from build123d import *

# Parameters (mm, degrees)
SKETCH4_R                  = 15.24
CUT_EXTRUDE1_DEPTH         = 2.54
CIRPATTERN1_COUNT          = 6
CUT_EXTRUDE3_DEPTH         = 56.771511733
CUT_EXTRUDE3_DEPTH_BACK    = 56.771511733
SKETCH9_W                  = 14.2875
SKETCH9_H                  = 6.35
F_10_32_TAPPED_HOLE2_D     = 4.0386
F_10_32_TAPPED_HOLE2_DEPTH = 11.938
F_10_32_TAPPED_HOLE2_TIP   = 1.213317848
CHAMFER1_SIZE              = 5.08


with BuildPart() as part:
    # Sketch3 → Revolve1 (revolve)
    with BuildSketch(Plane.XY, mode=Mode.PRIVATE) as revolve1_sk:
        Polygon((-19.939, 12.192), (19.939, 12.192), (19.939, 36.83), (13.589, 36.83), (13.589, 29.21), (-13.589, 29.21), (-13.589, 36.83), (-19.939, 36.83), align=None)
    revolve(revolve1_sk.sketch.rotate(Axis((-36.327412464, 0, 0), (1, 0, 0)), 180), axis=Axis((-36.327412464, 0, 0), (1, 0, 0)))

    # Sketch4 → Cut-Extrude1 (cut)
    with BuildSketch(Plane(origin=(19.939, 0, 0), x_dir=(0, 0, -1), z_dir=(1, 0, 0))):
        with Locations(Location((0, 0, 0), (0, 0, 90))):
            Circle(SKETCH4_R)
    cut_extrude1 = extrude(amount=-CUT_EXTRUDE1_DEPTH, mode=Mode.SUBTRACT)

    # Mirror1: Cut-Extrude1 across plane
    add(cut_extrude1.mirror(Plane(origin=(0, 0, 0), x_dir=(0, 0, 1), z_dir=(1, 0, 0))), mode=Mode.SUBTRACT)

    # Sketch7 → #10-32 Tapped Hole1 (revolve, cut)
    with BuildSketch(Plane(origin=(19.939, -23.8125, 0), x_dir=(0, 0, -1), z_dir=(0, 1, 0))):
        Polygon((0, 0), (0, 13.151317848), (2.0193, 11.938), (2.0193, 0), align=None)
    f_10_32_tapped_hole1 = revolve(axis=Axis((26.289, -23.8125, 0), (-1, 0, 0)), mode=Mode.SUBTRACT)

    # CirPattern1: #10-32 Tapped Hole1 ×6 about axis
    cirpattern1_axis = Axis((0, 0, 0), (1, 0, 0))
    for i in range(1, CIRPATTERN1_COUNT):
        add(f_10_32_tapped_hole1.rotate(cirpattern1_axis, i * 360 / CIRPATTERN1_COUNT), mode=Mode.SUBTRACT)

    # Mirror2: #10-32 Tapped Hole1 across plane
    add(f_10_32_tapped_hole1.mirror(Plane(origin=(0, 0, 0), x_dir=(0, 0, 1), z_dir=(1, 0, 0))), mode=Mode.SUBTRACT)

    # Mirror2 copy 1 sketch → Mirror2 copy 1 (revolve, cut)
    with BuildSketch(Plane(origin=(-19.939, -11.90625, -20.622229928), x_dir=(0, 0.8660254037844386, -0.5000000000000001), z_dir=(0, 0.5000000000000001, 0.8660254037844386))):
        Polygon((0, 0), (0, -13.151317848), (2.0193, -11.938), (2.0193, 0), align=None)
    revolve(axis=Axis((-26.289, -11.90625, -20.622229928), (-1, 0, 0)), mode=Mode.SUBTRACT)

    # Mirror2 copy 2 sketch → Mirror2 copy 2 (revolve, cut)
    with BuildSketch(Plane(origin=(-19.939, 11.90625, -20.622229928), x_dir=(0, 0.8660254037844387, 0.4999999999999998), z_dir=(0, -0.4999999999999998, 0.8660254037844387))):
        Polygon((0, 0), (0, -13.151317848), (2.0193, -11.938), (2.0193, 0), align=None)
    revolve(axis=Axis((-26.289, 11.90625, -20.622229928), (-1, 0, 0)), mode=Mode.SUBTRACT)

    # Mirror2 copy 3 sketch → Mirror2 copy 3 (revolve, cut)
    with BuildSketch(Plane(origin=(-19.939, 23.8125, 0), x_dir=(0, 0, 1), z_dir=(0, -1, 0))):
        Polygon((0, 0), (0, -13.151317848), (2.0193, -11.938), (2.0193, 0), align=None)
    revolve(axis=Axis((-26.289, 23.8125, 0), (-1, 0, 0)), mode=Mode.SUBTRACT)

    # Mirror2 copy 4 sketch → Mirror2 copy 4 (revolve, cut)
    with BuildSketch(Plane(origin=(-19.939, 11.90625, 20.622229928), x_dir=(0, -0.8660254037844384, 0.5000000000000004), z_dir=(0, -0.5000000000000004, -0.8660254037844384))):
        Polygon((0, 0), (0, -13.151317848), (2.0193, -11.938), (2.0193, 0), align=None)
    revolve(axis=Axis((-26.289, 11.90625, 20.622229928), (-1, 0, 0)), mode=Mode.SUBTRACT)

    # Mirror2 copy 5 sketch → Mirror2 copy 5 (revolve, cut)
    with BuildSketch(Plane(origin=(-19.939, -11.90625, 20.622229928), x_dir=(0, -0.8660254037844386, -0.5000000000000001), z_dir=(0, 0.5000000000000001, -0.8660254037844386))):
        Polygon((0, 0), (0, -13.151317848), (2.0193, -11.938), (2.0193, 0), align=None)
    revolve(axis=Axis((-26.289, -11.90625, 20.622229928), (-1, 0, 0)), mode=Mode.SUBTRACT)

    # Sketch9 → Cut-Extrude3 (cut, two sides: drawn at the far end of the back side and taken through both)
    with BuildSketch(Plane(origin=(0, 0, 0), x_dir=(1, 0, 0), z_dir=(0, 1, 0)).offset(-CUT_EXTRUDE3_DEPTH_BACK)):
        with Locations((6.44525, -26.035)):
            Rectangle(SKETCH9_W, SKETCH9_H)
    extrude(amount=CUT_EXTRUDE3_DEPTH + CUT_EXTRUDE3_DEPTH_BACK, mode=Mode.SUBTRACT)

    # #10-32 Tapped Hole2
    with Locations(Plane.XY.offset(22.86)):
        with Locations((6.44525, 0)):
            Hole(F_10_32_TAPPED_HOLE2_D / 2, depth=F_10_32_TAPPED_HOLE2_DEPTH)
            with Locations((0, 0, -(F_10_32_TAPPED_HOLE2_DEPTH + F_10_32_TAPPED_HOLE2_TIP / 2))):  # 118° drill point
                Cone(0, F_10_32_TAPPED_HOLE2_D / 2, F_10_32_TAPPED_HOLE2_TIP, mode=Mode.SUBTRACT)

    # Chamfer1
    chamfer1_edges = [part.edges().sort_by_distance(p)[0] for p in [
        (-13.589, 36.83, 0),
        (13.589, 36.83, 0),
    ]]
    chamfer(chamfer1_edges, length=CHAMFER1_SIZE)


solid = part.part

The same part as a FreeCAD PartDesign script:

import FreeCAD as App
import Part
import Sketcher
Q = App.Units.Quantity


def edges_at(feature, points):
    """Names of the edges that pass closest to the given points."""
    edges = feature.Shape.Edges
    near = lambda p: min(range(len(edges)), key=lambda i: edges[i].distToShape(Part.Vertex(*p))[0])
    return sorted({f"Edge{near(p) + 1}" for p in points})


def add_polygon(sketch, points):
    """Adds a closed chain of lines whose ends are joined by coincident constraints."""
    first, n = sketch.GeometryCount, len(points)
    for a, b in zip(points, points[1:] + points[:1]):
        sketch.addGeometry(Part.LineSegment(App.Vector(*a, 0), App.Vector(*b, 0)), False)
    for i in range(n):
        sketch.addConstraint(Sketcher.Constraint("Coincident", first + i, 2, first + (i + 1) % n, 1))

doc = App.newDocument("Part")
body = doc.addObject("PartDesign::Body", "Body")

# Sketch on XY plane
sketch1 = body.newObject("Sketcher::SketchObject", "Sketch")
sketch1.AttachmentSupport = (doc.getObject("XY_Plane"), [""])
sketch1.MapMode = "FlatFace"
add_polygon(sketch1, [(-20, 12), (20, 12), (20, 37), (14, 37), (14, 29), (-14, 29), (-14, 37), (-20, 37)])  # lines 0-7
sketch1.addConstraint(Sketcher.Constraint("Horizontal", 0))
sketch1.addConstraint(Sketcher.Constraint("Vertical", 1))
sketch1.addConstraint(Sketcher.Constraint("Horizontal", 2))
sketch1.addConstraint(Sketcher.Constraint("Vertical", 3))
sketch1.addConstraint(Sketcher.Constraint("Horizontal", 4))
sketch1.addConstraint(Sketcher.Constraint("Vertical", 5))
sketch1.addConstraint(Sketcher.Constraint("Horizontal", 6))
sketch1.addConstraint(Sketcher.Constraint("Vertical", 7))
sketch1.addConstraint(Sketcher.Constraint("Symmetric", 2, 2, 5, 2, -2))
sketch1.addConstraint(Sketcher.Constraint("Equal", 2, 6))
sketch1.addConstraint(Sketcher.Constraint("DistanceY", 3, 2, 3, 1, Q("0.3 in")))
sketch1.addConstraint(Sketcher.Constraint("DistanceX", 0, 1, 0, 2, Q("1.57 in")))
sketch1.addConstraint(Sketcher.Constraint("DistanceX", 2, 2, 2, 1, Q("0.25 in")))
sketch1.addConstraint(Sketcher.Constraint("DistanceY", 1, 1, 1, 2, Q("0.97 in")))
sketch1.addConstraint(Sketcher.Constraint("DistanceY", -1, 1, 0, 2, Q("0.48 in")))
revolution = body.newObject("PartDesign::Revolution", "Revolution")
revolution.Profile = sketch1
revolution.ReferenceAxis = (sketch1, ["H_Axis"])
revolution.Angle = 360

# Sketch on YZ plane
sketch2 = body.newObject("Sketcher::SketchObject", "Sketch001")
sketch2.AttachmentSupport = (doc.getObject("YZ_Plane"), [""])
sketch2.MapMode = "FlatFace"
sketch2.AttachmentOffset = App.Placement(App.Vector(0, 0, 0.785 * 25.4), App.Rotation())
sketch2.addGeometry(Part.Circle(App.Vector(0, 0, 0), App.Vector(0, 0, 1), 15), False)
sketch2.addConstraint(Sketcher.Constraint("Coincident", 0, 3, -1, 1))
sketch2.addConstraint(Sketcher.Constraint("Diameter", 0, Q("1.2 in")))
pocket1 = body.newObject("PartDesign::Pocket", "Pocket")
pocket1.Profile = sketch2
pocket1.Length = Q("0.1 in")
doc.recompute()

mirrored = body.newObject("PartDesign::Mirrored", "Mirrored")
mirrored.Originals = [pocket1]
mirrored.MirrorPlane = (doc.getObject("YZ_Plane"), [""])
body.Tip = mirrored

# Sketch on XZ plane
sketch3 = body.newObject("Sketcher::SketchObject", "Sketch002")
sketch3.AttachmentSupport = (doc.getObject("XZ_Plane"), [""])
sketch3.MapMode = "FlatFace"
sketch3.AttachmentOffset = App.Placement(App.Vector(0, 0, 0.9375 * 25.4), App.Rotation())
add_polygon(sketch3, [(6.8, 0), (19.9, 0), (19.9, -2), (8, -2)])  # lines 0-3
sketch3.addConstraint(Sketcher.Constraint("Horizontal", 0))
sketch3.addConstraint(Sketcher.Constraint("Vertical", 1))
sketch3.addConstraint(Sketcher.Constraint("Horizontal", 2))
sketch3.addConstraint(Sketcher.Constraint("PointOnObject", 0, 2, -1))
sketch3.addConstraint(Sketcher.Constraint("Angle", 3, Q("121 deg")))
sketch3.addConstraint(Sketcher.Constraint("DistanceX", 2, 2, 2, 1, Q("0.47 in")))
sketch3.addConstraint(Sketcher.Constraint("DistanceY", 1, 2, 1, 1, Q("0.0795 in")))
sketch3.addConstraint(Sketcher.Constraint("DistanceX", -1, 1, 0, 2, Q("0.785 in")))
groove = body.newObject("PartDesign::Groove", "Groove")
groove.Profile = sketch3
groove.ReferenceAxis = (sketch3, ["H_Axis"])
groove.Angle = 360
doc.recompute()

polarpattern = body.newObject("PartDesign::PolarPattern", "PolarPattern")
polarpattern.Originals = [groove]
polarpattern.Axis = (doc.getObject("X_Axis"), [""])
polarpattern.Angle = 360
polarpattern.Occurrences = 6
body.Tip = polarpattern
doc.recompute()

mirrored2 = body.newObject("PartDesign::Mirrored", "Mirrored001")
mirrored2.Originals = [groove]
mirrored2.MirrorPlane = (doc.getObject("YZ_Plane"), [""])
body.Tip = mirrored2

# Sketch on an angled plane
sketch4 = body.newObject("Sketcher::SketchObject", "Sketch003")
sketch4.Placement = App.Placement(App.Vector(-19.939, -11.90625, -20.62223), App.Rotation(App.Vector(0, 0.866025404, -0.5), App.Vector(-1, 0, 0), App.Vector(0, 0.5, 0.866025404), "ZXY"))
add_polygon(sketch4, [(0, 0), (0, -13.2), (2, -11.9), (2, 0)])  # lines 0-3
sketch4.addConstraint(Sketcher.Constraint("Vertical", 0))
sketch4.addConstraint(Sketcher.Constraint("Vertical", 2))
sketch4.addConstraint(Sketcher.Constraint("Horizontal", 3))
sketch4.addConstraint(Sketcher.Constraint("Coincident", 3, 2, -1, 1))
sketch4.addConstraint(Sketcher.Constraint("Angle", 1, Q("31 deg")))
sketch4.addConstraint(Sketcher.Constraint("DistanceY", 2, 1, 2, 2, Q("0.47 in")))
sketch4.addConstraint(Sketcher.Constraint("DistanceX", 3, 2, 3, 1, Q("0.0795 in")))
groove2 = body.newObject("PartDesign::Groove", "Groove001")
groove2.Profile = sketch4
groove2.ReferenceAxis = (sketch4, ["V_Axis"])
groove2.Angle = 360

# Sketch on an angled plane
sketch5 = body.newObject("Sketcher::SketchObject", "Sketch004")
sketch5.Placement = App.Placement(App.Vector(-19.939, 11.90625, -20.62223), App.Rotation(App.Vector(0, 0.866025404, 0.5), App.Vector(-1, 0, 0), App.Vector(0, -0.5, 0.866025404), "ZXY"))
add_polygon(sketch5, [(0, 0), (0, -13.2), (2, -11.9), (2, 0)])  # lines 0-3
sketch5.addConstraint(Sketcher.Constraint("Vertical", 0))
sketch5.addConstraint(Sketcher.Constraint("Vertical", 2))
sketch5.addConstraint(Sketcher.Constraint("Horizontal", 3))
sketch5.addConstraint(Sketcher.Constraint("Coincident", 3, 2, -1, 1))
sketch5.addConstraint(Sketcher.Constraint("Angle", 1, Q("31 deg")))
sketch5.addConstraint(Sketcher.Constraint("DistanceY", 2, 1, 2, 2, Q("0.47 in")))
sketch5.addConstraint(Sketcher.Constraint("DistanceX", 3, 2, 3, 1, Q("0.0795 in")))
groove3 = body.newObject("PartDesign::Groove", "Groove002")
groove3.Profile = sketch5
groove3.ReferenceAxis = (sketch5, ["V_Axis"])
groove3.Angle = 360

# Sketch on XZ plane
sketch6 = body.newObject("Sketcher::SketchObject", "Sketch005")
sketch6.AttachmentSupport = (doc.getObject("XZ_Plane"), [""])
sketch6.MapMode = "FlatFace"
sketch6.AttachmentOffset = App.Placement(App.Vector(0, 0, -0.9375 * 25.4), App.Rotation())
add_polygon(sketch6, [(-19.9, 0), (-6.8, 0), (-8, 2), (-19.9, 2)])  # lines 0-3
sketch6.addConstraint(Sketcher.Constraint("Horizontal", 0))
sketch6.addConstraint(Sketcher.Constraint("Horizontal", 2))
sketch6.addConstraint(Sketcher.Constraint("Vertical", 3))
sketch6.addConstraint(Sketcher.Constraint("PointOnObject", 0, 2, -1))
sketch6.addConstraint(Sketcher.Constraint("Angle", 1, Q("121 deg")))
sketch6.addConstraint(Sketcher.Constraint("DistanceX", 2, 2, 2, 1, Q("0.47 in")))
sketch6.addConstraint(Sketcher.Constraint("DistanceY", 3, 2, 3, 1, Q("0.0795 in")))
sketch6.addConstraint(Sketcher.Constraint("DistanceX", 1, 2, -1, 1, Q("0.315 in")))
groove4 = body.newObject("PartDesign::Groove", "Groove003")
groove4.Profile = sketch6
groove4.ReferenceAxis = (sketch6, ["H_Axis"])
groove4.Angle = 360

# Sketch on an angled plane
sketch7 = body.newObject("Sketcher::SketchObject", "Sketch006")
sketch7.Placement = App.Placement(App.Vector(-19.939, 11.90625, 20.62223), App.Rotation(App.Vector(0, -0.866025404, 0.5), App.Vector(-1, 0, 0), App.Vector(0, -0.5, -0.866025404), "ZXY"))
add_polygon(sketch7, [(0, 0), (0, -13.2), (2, -11.9), (2, 0)])  # lines 0-3
sketch7.addConstraint(Sketcher.Constraint("Vertical", 0))
sketch7.addConstraint(Sketcher.Constraint("Vertical", 2))
sketch7.addConstraint(Sketcher.Constraint("Horizontal", 3))
sketch7.addConstraint(Sketcher.Constraint("Coincident", 3, 2, -1, 1))
sketch7.addConstraint(Sketcher.Constraint("Angle", 1, Q("31 deg")))
sketch7.addConstraint(Sketcher.Constraint("DistanceY", 2, 1, 2, 2, Q("0.47 in")))
sketch7.addConstraint(Sketcher.Constraint("DistanceX", 3, 2, 3, 1, Q("0.0795 in")))
groove5 = body.newObject("PartDesign::Groove", "Groove004")
groove5.Profile = sketch7
groove5.ReferenceAxis = (sketch7, ["V_Axis"])
groove5.Angle = 360

# Sketch on an angled plane
sketch8 = body.newObject("Sketcher::SketchObject", "Sketch007")
sketch8.Placement = App.Placement(App.Vector(-19.939, -11.90625, 20.62223), App.Rotation(App.Vector(0, -0.866025404, -0.5), App.Vector(-1, 0, 0), App.Vector(0, 0.5, -0.866025404), "ZXY"))
add_polygon(sketch8, [(0, 0), (0, -13.2), (2, -11.9), (2, 0)])  # lines 0-3
sketch8.addConstraint(Sketcher.Constraint("Vertical", 0))
sketch8.addConstraint(Sketcher.Constraint("Vertical", 2))
sketch8.addConstraint(Sketcher.Constraint("Horizontal", 3))
sketch8.addConstraint(Sketcher.Constraint("Coincident", 3, 2, -1, 1))
sketch8.addConstraint(Sketcher.Constraint("Angle", 1, Q("31 deg")))
sketch8.addConstraint(Sketcher.Constraint("DistanceY", 2, 1, 2, 2, Q("0.47 in")))
sketch8.addConstraint(Sketcher.Constraint("DistanceX", 3, 2, 3, 1, Q("0.0795 in")))
groove6 = body.newObject("PartDesign::Groove", "Groove005")
groove6.Profile = sketch8
groove6.ReferenceAxis = (sketch8, ["V_Axis"])
groove6.Angle = 360

# Sketch on XZ plane
sketch9 = body.newObject("Sketcher::SketchObject", "Sketch008")
sketch9.AttachmentSupport = (doc.getObject("XZ_Plane"), [""])
sketch9.MapMode = "FlatFace"
add_polygon(sketch9, [(-1, 23), (-1, 29), (14, 29), (14, 23)])  # lines 0-3
sketch9.addConstraint(Sketcher.Constraint("Vertical", 0))
sketch9.addConstraint(Sketcher.Constraint("Horizontal", 1))
sketch9.addConstraint(Sketcher.Constraint("Vertical", 2))
sketch9.addConstraint(Sketcher.Constraint("Horizontal", 3))
sketch9.addConstraint(Sketcher.Constraint("DistanceY", 0, 1, 0, 2, Q("0.25 in")))
sketch9.addConstraint(Sketcher.Constraint("DistanceY", -1, 1, 2, 2, Q("0.9 in")))
sketch9.addConstraint(Sketcher.Constraint("DistanceX", 1, 1, 1, 2, Q("0.5625 in")))
sketch9.addConstraint(Sketcher.Constraint("DistanceX", -1, 1, 1, 2, Q("0.535 in")))
pocket2 = body.newObject("PartDesign::Pocket", "Pocket001")
pocket2.Profile = sketch9
pocket2.Type = "ThroughAll"
pocket2.Midplane = True

# Sketch on XY plane
sketch10 = body.newObject("Sketcher::SketchObject", "Sketch009")
sketch10.AttachmentSupport = (doc.getObject("XY_Plane"), [""])
sketch10.MapMode = "FlatFace"
sketch10.AttachmentOffset = App.Placement(App.Vector(0, 0, 0.9 * 25.4), App.Rotation())
sketch10.addGeometry(Part.Circle(App.Vector(6.4, 0, 0), App.Vector(0, 0, 1), 2), False)
sketch10.addConstraint(Sketcher.Constraint("PointOnObject", 0, 3, -1))
sketch10.addConstraint(Sketcher.Constraint("Diameter", 0, Q("0.159 in")))
sketch10.addConstraint(Sketcher.Constraint("DistanceX", -1, 1, 0, 3, Q("6.44525 mm")))
doc.recompute()
hole = body.newObject("PartDesign::Hole", "Hole")
hole.Profile = sketch10
hole.ThreadType = "None"
hole.Diameter = Q("0.159 in")
hole.DepthType = "Dimension"
hole.Depth = Q("0.47 in")
hole.DrillPoint = "Angled"
hole.DrillPointAngle = 118
doc.recompute()

chamfer = body.newObject("PartDesign::Chamfer", "Chamfer")
chamfer.Base = (hole, edges_at(hole, [(-13.589, 36.83, 0), (13.589, 36.83, 0)]))
chamfer.Size = Q("0.2 in")

doc.recompute()
